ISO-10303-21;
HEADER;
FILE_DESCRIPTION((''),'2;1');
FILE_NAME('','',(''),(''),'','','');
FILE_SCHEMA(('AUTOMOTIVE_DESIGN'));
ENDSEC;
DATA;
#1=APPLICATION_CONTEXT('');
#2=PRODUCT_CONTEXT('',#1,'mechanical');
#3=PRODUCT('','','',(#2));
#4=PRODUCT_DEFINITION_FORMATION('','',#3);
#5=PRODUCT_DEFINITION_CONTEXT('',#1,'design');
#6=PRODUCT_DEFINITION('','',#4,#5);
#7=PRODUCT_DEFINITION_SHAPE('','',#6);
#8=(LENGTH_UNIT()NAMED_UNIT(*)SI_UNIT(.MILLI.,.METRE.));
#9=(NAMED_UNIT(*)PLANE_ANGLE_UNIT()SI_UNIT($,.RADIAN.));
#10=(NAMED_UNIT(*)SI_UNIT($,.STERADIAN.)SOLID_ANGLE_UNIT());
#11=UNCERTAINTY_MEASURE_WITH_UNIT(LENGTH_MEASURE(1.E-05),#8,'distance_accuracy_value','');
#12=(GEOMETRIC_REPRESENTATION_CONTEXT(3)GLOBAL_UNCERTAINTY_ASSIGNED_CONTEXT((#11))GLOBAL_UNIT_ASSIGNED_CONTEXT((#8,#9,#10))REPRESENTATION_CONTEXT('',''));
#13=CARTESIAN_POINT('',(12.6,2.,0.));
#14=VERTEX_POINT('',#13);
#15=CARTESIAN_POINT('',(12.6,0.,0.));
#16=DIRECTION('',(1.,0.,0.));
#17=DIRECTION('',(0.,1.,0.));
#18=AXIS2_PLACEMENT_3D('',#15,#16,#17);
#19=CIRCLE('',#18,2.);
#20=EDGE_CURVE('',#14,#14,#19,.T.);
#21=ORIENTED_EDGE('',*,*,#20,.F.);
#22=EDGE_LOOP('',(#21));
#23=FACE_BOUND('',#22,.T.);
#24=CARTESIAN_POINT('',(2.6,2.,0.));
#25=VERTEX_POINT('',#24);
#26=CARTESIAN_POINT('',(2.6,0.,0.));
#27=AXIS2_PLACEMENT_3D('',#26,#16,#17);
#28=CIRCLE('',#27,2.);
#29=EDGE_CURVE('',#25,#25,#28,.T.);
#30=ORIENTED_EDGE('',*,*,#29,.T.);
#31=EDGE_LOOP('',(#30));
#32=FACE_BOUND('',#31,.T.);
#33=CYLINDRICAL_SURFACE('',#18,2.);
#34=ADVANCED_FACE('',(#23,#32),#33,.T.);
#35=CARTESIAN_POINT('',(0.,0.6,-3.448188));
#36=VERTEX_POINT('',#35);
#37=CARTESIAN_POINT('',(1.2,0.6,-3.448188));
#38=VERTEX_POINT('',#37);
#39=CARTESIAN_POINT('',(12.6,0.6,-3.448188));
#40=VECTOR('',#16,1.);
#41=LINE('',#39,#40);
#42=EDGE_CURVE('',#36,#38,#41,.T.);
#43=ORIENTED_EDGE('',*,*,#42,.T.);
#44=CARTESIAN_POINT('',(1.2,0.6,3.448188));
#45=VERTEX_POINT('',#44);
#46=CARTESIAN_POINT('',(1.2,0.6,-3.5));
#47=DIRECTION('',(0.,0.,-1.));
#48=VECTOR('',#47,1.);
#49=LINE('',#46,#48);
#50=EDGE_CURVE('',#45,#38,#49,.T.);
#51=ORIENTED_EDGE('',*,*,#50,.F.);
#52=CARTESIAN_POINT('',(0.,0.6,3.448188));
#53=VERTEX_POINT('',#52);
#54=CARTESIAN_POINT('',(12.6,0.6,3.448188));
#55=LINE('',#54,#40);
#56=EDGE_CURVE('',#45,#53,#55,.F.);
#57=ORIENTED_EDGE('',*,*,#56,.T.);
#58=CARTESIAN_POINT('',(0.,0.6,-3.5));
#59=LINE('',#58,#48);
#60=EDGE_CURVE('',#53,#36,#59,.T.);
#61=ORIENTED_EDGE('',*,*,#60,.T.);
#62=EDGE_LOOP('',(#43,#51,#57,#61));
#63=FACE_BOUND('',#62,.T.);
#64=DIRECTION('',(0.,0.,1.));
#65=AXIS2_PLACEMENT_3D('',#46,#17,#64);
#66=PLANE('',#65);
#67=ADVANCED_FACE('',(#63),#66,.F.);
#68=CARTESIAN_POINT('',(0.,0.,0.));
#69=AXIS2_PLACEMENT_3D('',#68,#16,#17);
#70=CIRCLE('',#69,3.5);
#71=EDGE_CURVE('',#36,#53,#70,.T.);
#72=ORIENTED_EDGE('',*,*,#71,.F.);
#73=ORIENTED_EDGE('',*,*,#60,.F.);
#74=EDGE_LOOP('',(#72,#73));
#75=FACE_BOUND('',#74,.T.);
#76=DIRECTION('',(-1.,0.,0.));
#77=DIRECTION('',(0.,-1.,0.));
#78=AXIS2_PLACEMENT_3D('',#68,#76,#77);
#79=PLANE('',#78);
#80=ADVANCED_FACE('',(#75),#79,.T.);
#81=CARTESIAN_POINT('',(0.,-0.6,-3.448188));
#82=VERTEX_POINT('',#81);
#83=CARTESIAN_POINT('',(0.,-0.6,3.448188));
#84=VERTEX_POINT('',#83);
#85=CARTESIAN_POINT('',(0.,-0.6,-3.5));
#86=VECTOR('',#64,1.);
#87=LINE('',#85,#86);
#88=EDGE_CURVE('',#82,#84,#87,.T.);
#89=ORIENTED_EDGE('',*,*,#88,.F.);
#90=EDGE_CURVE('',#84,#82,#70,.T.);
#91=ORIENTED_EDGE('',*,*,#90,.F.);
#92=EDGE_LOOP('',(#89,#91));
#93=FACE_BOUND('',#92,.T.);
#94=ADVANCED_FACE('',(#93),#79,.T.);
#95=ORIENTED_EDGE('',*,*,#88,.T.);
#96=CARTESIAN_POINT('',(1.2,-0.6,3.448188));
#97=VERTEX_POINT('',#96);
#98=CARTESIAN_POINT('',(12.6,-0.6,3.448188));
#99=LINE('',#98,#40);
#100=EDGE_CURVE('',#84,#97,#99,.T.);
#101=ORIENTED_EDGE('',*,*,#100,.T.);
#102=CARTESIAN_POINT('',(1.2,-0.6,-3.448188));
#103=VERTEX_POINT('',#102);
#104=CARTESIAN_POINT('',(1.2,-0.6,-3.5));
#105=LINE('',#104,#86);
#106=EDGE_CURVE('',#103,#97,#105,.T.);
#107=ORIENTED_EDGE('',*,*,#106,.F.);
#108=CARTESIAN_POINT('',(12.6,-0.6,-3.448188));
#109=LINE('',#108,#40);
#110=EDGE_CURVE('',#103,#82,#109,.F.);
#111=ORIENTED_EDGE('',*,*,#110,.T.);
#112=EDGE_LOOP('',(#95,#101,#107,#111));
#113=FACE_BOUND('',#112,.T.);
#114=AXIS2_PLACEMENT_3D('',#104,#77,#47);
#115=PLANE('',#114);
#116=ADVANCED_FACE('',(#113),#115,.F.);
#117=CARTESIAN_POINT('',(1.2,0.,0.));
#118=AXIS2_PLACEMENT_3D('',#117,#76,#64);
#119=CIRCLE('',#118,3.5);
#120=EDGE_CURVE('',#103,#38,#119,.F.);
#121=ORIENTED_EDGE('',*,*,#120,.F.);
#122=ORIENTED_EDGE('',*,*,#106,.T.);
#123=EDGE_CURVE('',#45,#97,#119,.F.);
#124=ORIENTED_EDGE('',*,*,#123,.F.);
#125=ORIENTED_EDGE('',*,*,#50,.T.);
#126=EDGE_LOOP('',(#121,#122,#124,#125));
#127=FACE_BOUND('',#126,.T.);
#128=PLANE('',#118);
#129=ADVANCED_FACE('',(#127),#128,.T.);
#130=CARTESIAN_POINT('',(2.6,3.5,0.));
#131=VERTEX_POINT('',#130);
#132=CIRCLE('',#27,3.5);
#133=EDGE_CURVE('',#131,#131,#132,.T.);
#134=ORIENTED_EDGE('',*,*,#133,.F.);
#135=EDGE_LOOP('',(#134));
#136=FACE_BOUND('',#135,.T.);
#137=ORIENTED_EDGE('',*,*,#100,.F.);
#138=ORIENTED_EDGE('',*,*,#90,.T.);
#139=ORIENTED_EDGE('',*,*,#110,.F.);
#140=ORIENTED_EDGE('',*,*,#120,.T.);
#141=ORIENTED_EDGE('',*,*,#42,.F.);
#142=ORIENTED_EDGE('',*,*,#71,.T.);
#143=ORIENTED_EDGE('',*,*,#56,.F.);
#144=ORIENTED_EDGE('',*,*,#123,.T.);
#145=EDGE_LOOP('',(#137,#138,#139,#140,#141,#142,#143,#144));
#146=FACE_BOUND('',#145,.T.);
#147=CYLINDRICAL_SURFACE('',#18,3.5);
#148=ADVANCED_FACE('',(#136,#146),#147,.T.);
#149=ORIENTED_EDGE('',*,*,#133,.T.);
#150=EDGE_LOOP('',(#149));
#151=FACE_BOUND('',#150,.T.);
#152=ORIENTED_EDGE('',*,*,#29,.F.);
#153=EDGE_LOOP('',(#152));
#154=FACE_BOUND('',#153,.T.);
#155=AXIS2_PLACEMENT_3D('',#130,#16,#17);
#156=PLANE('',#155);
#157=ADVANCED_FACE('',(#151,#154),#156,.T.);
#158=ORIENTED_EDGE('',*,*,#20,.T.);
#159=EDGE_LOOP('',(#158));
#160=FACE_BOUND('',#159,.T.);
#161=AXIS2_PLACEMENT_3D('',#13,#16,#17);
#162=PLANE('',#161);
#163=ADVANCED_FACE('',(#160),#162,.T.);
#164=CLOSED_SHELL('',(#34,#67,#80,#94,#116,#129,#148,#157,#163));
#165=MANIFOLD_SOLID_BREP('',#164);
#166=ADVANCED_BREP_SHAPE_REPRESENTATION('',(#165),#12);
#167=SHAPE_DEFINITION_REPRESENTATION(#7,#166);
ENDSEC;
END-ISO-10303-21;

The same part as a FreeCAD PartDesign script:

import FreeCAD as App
import Part
import Sketcher

V = App.Vector


def add_polygon(sketch, points):
    """Adds a closed chain of lines whose ends are joined by coincident constraints."""
    first, n = sketch.GeometryCount, len(points)
    for a, b in zip(points, points[1:] + points[:1]):
        sketch.addGeometry(Part.LineSegment(App.Vector(*a, 0), App.Vector(*b, 0)), False)
    for i in range(n):
        sketch.addConstraint(Sketcher.Constraint("Coincident", first + i, 2, first + (i + 1) % n, 1))

doc = App.newDocument("Part")
body = doc.addObject("PartDesign::Body", "Body")

sketch1 = body.newObject("Sketcher::SketchObject", "Sketch")
sketch1.AttachmentSupport = (doc.getObject("XY_Plane"), [""])
sketch1.MapMode = "FlatFace"
add_polygon(sketch1, [(0, 3.5), (0, 0), (12.6, 0), (12.6, 2), (2.6, 2), (2.6, 3.5)])
sketch1.addConstraint(Sketcher.Constraint("Vertical", 0))
sketch1.addConstraint(Sketcher.Constraint("Horizontal", 1))
sketch1.addConstraint(Sketcher.Constraint("Vertical", 2))
sketch1.addConstraint(Sketcher.Constraint("Horizontal", 3))
sketch1.addConstraint(Sketcher.Constraint("Vertical", 4))
sketch1.addConstraint(Sketcher.Constraint("Horizontal", 5))
sketch1.addConstraint(Sketcher.Constraint("Coincident", 0, 2, -1, 1))
sketch1.addConstraint(Sketcher.Constraint("DistanceX", 3, 2, 3, 1, 10.0))
sketch1.addConstraint(Sketcher.Constraint("DistanceY", 2, 1, 2, 2, 2.0))
sketch1.addConstraint(Sketcher.Constraint("DistanceX", 1, 1, 1, 2, 12.6))
sketch1.addConstraint(Sketcher.Constraint("DistanceY", 0, 2, 0, 1, 3.5))
revolution = body.newObject("PartDesign::Revolution", "Revolution")
revolution.Profile = sketch1
revolution.ReferenceAxis = (sketch1, ["H_Axis"])
revolution.Angle = 360

sketch2 = body.newObject("Sketcher::SketchObject", "Sketch001")
sketch2.AttachmentSupport = (doc.getObject("YZ_Plane"), [""])
sketch2.MapMode = "FlatFace"
add_polygon(sketch2, [(0.6, -3.5), (-0.6, -3.5), (-0.6, 3.5), (0.6, 3.5)])
sketch2.addConstraint(Sketcher.Constraint("Horizontal", 0))
sketch2.addConstraint(Sketcher.Constraint("Vertical", 1))
sketch2.addConstraint(Sketcher.Constraint("Horizontal", 2))
sketch2.addConstraint(Sketcher.Constraint("Vertical", 3))
sketch2.addConstraint(Sketcher.Constraint("Symmetric", 0, 2, 2, 2, -1, 1))
sketch2.addConstraint(Sketcher.Constraint("DistanceY", 1, 1, 1, 2, 7.0))
sketch2.addConstraint(Sketcher.Constraint("DistanceX", 0, 2, 0, 1, 1.2))
pocket1 = body.newObject("PartDesign::Pocket", "Pocket")
pocket1.Profile = sketch2
pocket1.Length = 1.2
pocket1.Reversed = True

doc.recompute()
